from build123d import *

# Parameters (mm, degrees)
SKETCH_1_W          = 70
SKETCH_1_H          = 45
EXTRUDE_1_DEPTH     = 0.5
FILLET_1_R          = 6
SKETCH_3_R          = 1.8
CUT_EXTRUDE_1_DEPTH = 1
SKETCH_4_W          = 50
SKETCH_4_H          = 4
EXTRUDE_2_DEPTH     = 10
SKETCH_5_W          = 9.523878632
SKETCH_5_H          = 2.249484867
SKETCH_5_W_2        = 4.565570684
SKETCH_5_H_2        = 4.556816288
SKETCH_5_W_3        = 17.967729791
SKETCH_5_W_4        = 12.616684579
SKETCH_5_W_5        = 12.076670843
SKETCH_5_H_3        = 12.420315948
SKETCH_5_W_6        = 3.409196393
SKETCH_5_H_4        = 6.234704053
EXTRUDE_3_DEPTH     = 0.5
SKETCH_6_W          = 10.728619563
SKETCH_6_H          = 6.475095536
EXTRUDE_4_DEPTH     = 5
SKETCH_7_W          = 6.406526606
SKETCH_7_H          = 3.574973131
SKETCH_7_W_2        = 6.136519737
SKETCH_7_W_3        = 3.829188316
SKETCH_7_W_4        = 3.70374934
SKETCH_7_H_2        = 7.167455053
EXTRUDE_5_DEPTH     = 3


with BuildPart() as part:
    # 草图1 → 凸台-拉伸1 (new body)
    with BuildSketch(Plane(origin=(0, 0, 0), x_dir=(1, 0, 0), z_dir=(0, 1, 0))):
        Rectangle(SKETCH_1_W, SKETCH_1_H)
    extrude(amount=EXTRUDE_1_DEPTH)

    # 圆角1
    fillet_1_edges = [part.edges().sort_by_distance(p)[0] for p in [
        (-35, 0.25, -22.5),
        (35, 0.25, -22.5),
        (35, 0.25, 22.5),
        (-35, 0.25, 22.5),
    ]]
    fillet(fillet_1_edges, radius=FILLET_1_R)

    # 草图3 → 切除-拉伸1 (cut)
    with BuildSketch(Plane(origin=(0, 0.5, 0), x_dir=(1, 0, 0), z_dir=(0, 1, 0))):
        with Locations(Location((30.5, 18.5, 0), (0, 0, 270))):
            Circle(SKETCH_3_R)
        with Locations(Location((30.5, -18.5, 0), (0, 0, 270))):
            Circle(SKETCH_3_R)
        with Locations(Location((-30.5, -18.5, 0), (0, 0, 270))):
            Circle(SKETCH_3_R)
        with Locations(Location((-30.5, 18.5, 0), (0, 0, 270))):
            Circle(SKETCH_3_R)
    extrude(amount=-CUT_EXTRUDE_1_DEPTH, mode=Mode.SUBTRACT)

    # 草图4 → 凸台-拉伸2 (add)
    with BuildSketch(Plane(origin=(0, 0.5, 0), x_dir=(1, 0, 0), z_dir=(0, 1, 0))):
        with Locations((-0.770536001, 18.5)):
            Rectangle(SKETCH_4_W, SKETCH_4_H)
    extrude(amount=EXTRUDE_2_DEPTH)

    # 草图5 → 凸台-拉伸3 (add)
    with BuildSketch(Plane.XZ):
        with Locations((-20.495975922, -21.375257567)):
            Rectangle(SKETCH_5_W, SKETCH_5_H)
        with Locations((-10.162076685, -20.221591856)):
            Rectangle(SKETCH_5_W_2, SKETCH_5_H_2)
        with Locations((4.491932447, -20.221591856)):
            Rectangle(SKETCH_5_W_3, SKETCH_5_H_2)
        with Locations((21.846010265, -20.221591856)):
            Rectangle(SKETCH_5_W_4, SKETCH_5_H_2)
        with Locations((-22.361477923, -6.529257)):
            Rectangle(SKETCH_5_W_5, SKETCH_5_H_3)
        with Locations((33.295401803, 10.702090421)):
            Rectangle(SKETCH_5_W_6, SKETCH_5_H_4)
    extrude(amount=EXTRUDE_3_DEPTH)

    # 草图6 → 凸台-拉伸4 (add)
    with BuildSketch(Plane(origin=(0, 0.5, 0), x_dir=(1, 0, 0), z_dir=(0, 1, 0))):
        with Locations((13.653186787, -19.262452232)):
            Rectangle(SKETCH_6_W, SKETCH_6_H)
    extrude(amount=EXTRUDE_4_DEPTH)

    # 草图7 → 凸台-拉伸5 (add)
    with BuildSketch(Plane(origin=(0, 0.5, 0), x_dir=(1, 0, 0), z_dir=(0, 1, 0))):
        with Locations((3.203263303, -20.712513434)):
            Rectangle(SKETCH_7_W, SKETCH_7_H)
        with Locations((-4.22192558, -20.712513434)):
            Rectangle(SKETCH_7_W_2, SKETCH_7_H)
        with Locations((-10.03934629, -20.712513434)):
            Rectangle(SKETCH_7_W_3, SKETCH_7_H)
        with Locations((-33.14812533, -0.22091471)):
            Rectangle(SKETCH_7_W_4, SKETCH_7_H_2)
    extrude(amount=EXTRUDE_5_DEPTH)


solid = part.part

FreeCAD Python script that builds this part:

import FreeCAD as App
import Part
import Sketcher
Q = App.Units.Quantity


def edges_at(feature, points):
    """Names of the edges that pass closest to the given points."""
    edges = feature.Shape.Edges
    near = lambda p: min(range(len(edges)), key=lambda i: edges[i].distToShape(Part.Vertex(*p))[0])
    return sorted({f"Edge{near(p) + 1}" for p in points})


def add_polygon(sketch, points):
    """Adds a closed chain of lines whose ends are joined by coincident constraints."""
    first, n = sketch.GeometryCount, len(points)
    for a, b in zip(points, points[1:] + points[:1]):
        sketch.addGeometry(Part.LineSegment(App.Vector(*a, 0), App.Vector(*b, 0)), False)
    for i in range(n):
        sketch.addConstraint(Sketcher.Constraint("Coincident", first + i, 2, first + (i + 1) % n, 1))

doc = App.newDocument("Part")
body = doc.addObject("PartDesign::Body", "Body")

sketch1 = doc.addObject("Sketcher::SketchObject", "Sketch")
body.addObject(sketch1)
sketch1.AttachmentSupport = (doc.XZ_Plane, [""])
sketch1.MapMode = "FlatFace"
add_polygon(sketch1, [(-35, -22.5), (-35, 22.5), (35, 22.5), (35, -22.5)])
sketch1.addConstraint(Sketcher.Constraint("Vertical", 0))
sketch1.addConstraint(Sketcher.Constraint("Horizontal", 1))
sketch1.addConstraint(Sketcher.Constraint("Vertical", 2))
sketch1.addConstraint(Sketcher.Constraint("Horizontal", 3))
sketch1.addConstraint(Sketcher.Constraint("Symmetric", 0, 2, 2, 2, -1, 1))
sketch1.addConstraint(Sketcher.Constraint("DistanceX", 1, 1, 1, 2, Q("70 mm")))
sketch1.addConstraint(Sketcher.Constraint("DistanceY", 0, 1, 0, 2, Q("45 mm")))
pad1 = doc.addObject("PartDesign::Pad", "Pad")
body.addObject(pad1)
pad1.Profile = sketch1
pad1.Length = 0.5
pad1.Reversed = True
doc.recompute()

fillet = doc.addObject("PartDesign::Fillet", "Fillet")
body.addObject(fillet)
fillet.Base = (pad1, edges_at(pad1, [
    (-35, 0.25, -22.5),
    (35, 0.25, -22.5),
    (35, 0.25, 22.5),
    (-35, 0.25, 22.5),
]))
fillet.Radius = 6

sketch2 = doc.addObject("Sketcher::SketchObject", "Sketch001")
body.addObject(sketch2)
sketch2.AttachmentSupport = (doc.XZ_Plane, [""])
sketch2.MapMode = "FlatFace"
sketch2.AttachmentOffset = App.Placement(App.Vector(0, 0, -0.5), App.Rotation())
sketch2.addGeometry(Part.Circle(App.Vector(30.5, -18.5, 0), App.Vector(0, 0, 1), 1.8), False)
sketch2.addGeometry(Part.Circle(App.Vector(30.5, 18.5, 0), App.Vector(0, 0, 1), 1.8), False)
sketch2.addGeometry(Part.Circle(App.Vector(-30.5, 18.5, 0), App.Vector(0, 0, 1), 1.8), False)
sketch2.addGeometry(Part.Circle(App.Vector(-30.5, -18.5, 0), App.Vector(0, 0, 1), 1.8), False)
sketch2.addConstraint(Sketcher.Constraint("Equal", 0, 1))
sketch2.addConstraint(Sketcher.Constraint("Equal", 1, 2))
sketch2.addConstraint(Sketcher.Constraint("Equal", 2, 3))
sketch2.addConstraint(Sketcher.Constraint("Symmetric", 0, 3, 2, 3, -1, 1))
sketch2.addConstraint(Sketcher.Constraint("Symmetric", 1, 3, 3, 3, -1, 1))
sketch2.addConstraint(Sketcher.Constraint("Symmetric", 1, 3, 2, 3, -2))
sketch2.addConstraint(Sketcher.Constraint("Diameter", 0, Q("3.6 mm")))
sketch2.addConstraint(Sketcher.Constraint("DistanceY", 0, 3, 1, 3, Q("37 mm")))
sketch2.addConstraint(Sketcher.Constraint("DistanceX", 2, 3, 1, 3, Q("61 mm")))
pocket1 = doc.addObject("PartDesign::Pocket", "Pocket")
body.addObject(pocket1)
pocket1.Profile = sketch2
pocket1.Length = 1
pocket1.Reversed = True

sketch3 = doc.addObject("Sketcher::SketchObject", "Sketch002")
body.addObject(sketch3)
sketch3.AttachmentSupport = (doc.XZ_Plane, [""])
sketch3.MapMode = "FlatFace"
sketch3.AttachmentOffset = App.Placement(App.Vector(0, 0, -0.5), App.Rotation())
add_polygon(sketch3, [(-25.770536, -20.5), (-25.770536, -16.5), (24.229464, -16.5), (24.229464, -20.5)])
sketch3.addConstraint(Sketcher.Constraint("Vertical", 0))
sketch3.addConstraint(Sketcher.Constraint("Horizontal", 1))
sketch3.addConstraint(Sketcher.Constraint("Vertical", 2))
sketch3.addConstraint(Sketcher.Constraint("Horizontal", 3))
sketch3.addConstraint(Sketcher.Constraint("DistanceX", 1, 1, 1, 2, Q("50 mm")))
sketch3.addConstraint(Sketcher.Constraint("DistanceY", 0, 1, 0, 2, Q("4 mm")))
sketch3.addConstraint(Sketcher.Constraint("DistanceY", 0, 2, -1, 1, Q("16.5 mm")))
sketch3.addConstraint(Sketcher.Constraint("DistanceX", 0, 2, -1, 1, Q("25.770536 mm")))
pad2 = doc.addObject("PartDesign::Pad", "Pad001")
body.addObject(pad2)
pad2.Profile = sketch3
pad2.Length = 10
pad2.Reversed = True

sketch4 = doc.addObject("Sketcher::SketchObject", "Sketch003")
body.addObject(sketch4)
sketch4.AttachmentSupport = (doc.XZ_Plane, [""])
sketch4.MapMode = "FlatFace"
add_polygon(sketch4, [(-25.257915, -20.250515), (-25.257915, -22.5), (-15.734037, -22.5), (-15.734037, -20.250515)])
add_polygon(sketch4, [(-12.444862, -17.943184), (-12.444862, -22.5), (-7.879291, -22.5), (-7.879291, -17.943184)])
add_polygon(sketch4, [(-4.491932, -17.943184), (-4.491932, -22.5), (13.475797, -22.5), (13.475797, -17.943184)])
add_polygon(sketch4, [(15.537668, -17.943184), (15.537668, -22.5), (28.154353, -22.5), (28.154353, -17.943184)])
add_polygon(sketch4, [(-28.399813, -0.319099), (-28.399813, -12.739415), (-16.323143, -12.739415), (-16.323143, -0.319099)])
add_polygon(sketch4, [(31.590804, 13.819442), (31.590804, 7.584738), (35, 7.584738), (35, 13.819442)])
sketch4.addConstraint(Sketcher.Constraint("Vertical", 0))
sketch4.addConstraint(Sketcher.Constraint("Horizontal", 1))
sketch4.addConstraint(Sketcher.Constraint("Vertical", 2))
sketch4.addConstraint(Sketcher.Constraint("Horizontal", 3))
sketch4.addConstraint(Sketcher.Constraint("Vertical", 4))
sketch4.addConstraint(Sketcher.Constraint("Horizontal", 5))
sketch4.addConstraint(Sketcher.Constraint("Vertical", 6))
sketch4.addConstraint(Sketcher.Constraint("Horizontal", 7))
sketch4.addConstraint(Sketcher.Constraint("Vertical", 8))
sketch4.addConstraint(Sketcher.Constraint("Horizontal", 9))
sketch4.addConstraint(Sketcher.Constraint("Vertical", 10))
sketch4.addConstraint(Sketcher.Constraint("Horizontal", 11))
sketch4.addConstraint(Sketcher.Constraint("Vertical", 12))
sketch4.addConstraint(Sketcher.Constraint("Horizontal", 13))
sketch4.addConstraint(Sketcher.Constraint("Vertical", 14))
sketch4.addConstraint(Sketcher.Constraint("Horizontal", 15))
sketch4.addConstraint(Sketcher.Constraint("Vertical", 16))
sketch4.addConstraint(Sketcher.Constraint("Horizontal", 17))
sketch4.addConstraint(Sketcher.Constraint("Vertical", 18))
sketch4.addConstraint(Sketcher.Constraint("Horizontal", 19))
sketch4.addConstraint(Sketcher.Constraint("Vertical", 20))
sketch4.addConstraint(Sketcher.Constraint("Horizontal", 21))
sketch4.addConstraint(Sketcher.Constraint("Vertical", 22))
sketch4.addConstraint(Sketcher.Constraint("Horizontal", 23))
sketch4.addConstraint(Sketcher.Constraint("Horizontal", 1, 2, 4, 2))
sketch4.addConstraint(Sketcher.Constraint("Horizontal", 5, 2, 8, 2))
sketch4.addConstraint(Sketcher.Constraint("Horizontal", 7, 2, 10, 2))
sketch4.addConstraint(Sketcher.Constraint("Horizontal", 9, 2, 12, 2))
sketch4.addConstraint(Sketcher.Constraint("Horizontal", 11, 2, 14, 2))
sketch4.addConstraint(Sketcher.Constraint("DistanceX", -1, 1, 21, 2, Q("35 mm")))
sketch4.addConstraint(Sketcher.Constraint("DistanceY", 0, 2, -1, 1, Q("22.5 mm")))
sketch4.addConstraint(Sketcher.Constraint("DistanceX", 1, 1, 1, 2, Q("9.523879 mm")))
sketch4.addConstraint(Sketcher.Constraint("DistanceX", 5, 1, 5, 2, Q("4.565571 mm")))
sketch4.addConstraint(Sketcher.Constraint("DistanceX", 9, 1, 9, 2, Q("17.96773 mm")))
sketch4.addConstraint(Sketcher.Constraint("DistanceX", 17, 1, 17, 2, Q("12.076671 mm")))
sketch4.addConstraint(Sketcher.Constraint("DistanceY", 18, 2, -1, 1, Q("0.319099 mm")))
sketch4.addConstraint(Sketcher.Constraint("DistanceX", 8, 2, 12, 2, Q("20.0296 mm")))
sketch4.addConstraint(Sketcher.Constraint("DistanceX", 16, 2, 3, 2, Q("3.141898 mm")))
sketch4.addConstraint(Sketcher.Constraint("DistanceY", 3, 2, 16, 2, Q("7.5111 mm")))
sketch4.addConstraint(Sketcher.Constraint("DistanceX", 13, 1, 13, 2, Q("12.616685 mm")))
sketch4.addConstraint(Sketcher.Constraint("DistanceX", 21, 1, 21, 2, Q("3.409196 mm")))
sketch4.addConstraint(Sketcher.Constraint("DistanceY", 0, 2, 0, 1, Q("2.249485 mm")))
sketch4.addConstraint(Sketcher.Constraint("DistanceY", 4, 2, 4, 1, Q("4.556816 mm")))
sketch4.addConstraint(Sketcher.Constraint("DistanceY", 20, 2, 20, 1, Q("6.234704 mm")))
sketch4.addConstraint(Sketcher.Constraint("DistanceX", 5, 2, -1, 1, Q("7.879291 mm")))
sketch4.addConstraint(Sketcher.Constraint("DistanceY", -1, 1, 20, 2, Q("7.584738 mm")))
sketch4.addConstraint(Sketcher.Constraint("DistanceX", 5, 2, 8, 2, Q("3.387359 mm")))
sketch4.addConstraint(Sketcher.Constraint("DistanceX", 16, 2, 7, 2, Q("15.954951 mm")))
pad3 = doc.addObject("PartDesign::Pad", "Pad002")
body.addObject(pad3)
pad3.Profile = sketch4
pad3.Length = 0.5

sketch5 = doc.addObject("Sketcher::SketchObject", "Sketch004")
body.addObject(sketch5)
sketch5.AttachmentSupport = (doc.XZ_Plane, [""])
sketch5.MapMode = "FlatFace"
sketch5.AttachmentOffset = App.Placement(App.Vector(0, 0, -0.5), App.Rotation())
add_polygon(sketch5, [(8.288877, 16.024904), (8.288877, 22.5), (19.017497, 22.5), (19.017497, 16.024904)])
sketch5.addConstraint(Sketcher.Constraint("Vertical", 0))
sketch5.addConstraint(Sketcher.Constraint("Horizontal", 1))
sketch5.addConstraint(Sketcher.Constraint("Vertical", 2))
sketch5.addConstraint(Sketcher.Constraint("Horizontal", 3))
sketch5.addConstraint(Sketcher.Constraint("DistanceY", -1, 1, 0, 2, Q("22.5 mm")))
sketch5.addConstraint(Sketcher.Constraint("DistanceX", 1, 1, 1, 2, Q("10.72862 mm")))
sketch5.addConstraint(Sketcher.Constraint("DistanceY", 0, 1, 0, 2, Q("6.475096 mm")))
sketch5.addConstraint(Sketcher.Constraint("DistanceX", -1, 1, 0, 2, Q("8.288877 mm")))
pad4 = doc.addObject("PartDesign::Pad", "Pad003")
body.addObject(pad4)
pad4.Profile = sketch5
pad4.Length = 5
pad4.Reversed = True

sketch6 = doc.addObject("Sketcher::SketchObject", "Sketch005")
body.addObject(sketch6)
sketch6.AttachmentSupport = (doc.XZ_Plane, [""])
sketch6.MapMode = "FlatFace"
sketch6.AttachmentOffset = App.Placement(App.Vector(0, 0, -0.5), App.Rotation())
add_polygon(sketch6, [(0, 18.925027), (0, 22.5), (6.406527, 22.5), (6.406527, 18.925027)])
add_polygon(sketch6, [(-7.290185, 18.925027), (-7.290185, 22.5), (-1.153666, 22.5), (-1.153666, 18.925027)])
add_polygon(sketch6, [(-11.95394, 18.925027), (-11.95394, 22.5), (-8.124752, 22.5), (-8.124752, 18.925027)])
add_polygon(sketch6, [(-35, -3.362813), (-35, 3.804642), (-31.296251, 3.804642), (-31.296251, -3.362813)])
sketch6.addConstraint(Sketcher.Constraint("Vertical", 0))
sketch6.addConstraint(Sketcher.Constraint("Horizontal", 1))
sketch6.addConstraint(Sketcher.Constraint("Vertical", 2))
sketch6.addConstraint(Sketcher.Constraint("Horizontal", 3))
sketch6.addConstraint(Sketcher.Constraint("Vertical", 4))
sketch6.addConstraint(Sketcher.Constraint("Horizontal", 5))
sketch6.addConstraint(Sketcher.Constraint("Vertical", 6))
sketch6.addConstraint(Sketcher.Constraint("Horizontal", 7))
sketch6.addConstraint(Sketcher.Constraint("Vertical", 8))
sketch6.addConstraint(Sketcher.Constraint("Horizontal", 9))
sketch6.addConstraint(Sketcher.Constraint("Vertical", 10))
sketch6.addConstraint(Sketcher.Constraint("Horizontal", 11))
sketch6.addConstraint(Sketcher.Constraint("Vertical", 12))
sketch6.addConstraint(Sketcher.Constraint("Horizontal", 13))
sketch6.addConstraint(Sketcher.Constraint("Vertical", 14))
sketch6.addConstraint(Sketcher.Constraint("Horizontal", 15))
sketch6.addConstraint(Sketcher.Constraint("PointOnObject", 0, 2, -2))
sketch6.addConstraint(Sketcher.Constraint("Horizontal", 1, 2, 4, 2))
sketch6.addConstraint(Sketcher.Constraint("Horizontal", 3, 2, 6, 2))
sketch6.addConstraint(Sketcher.Constraint("Horizontal", 5, 2, 8, 2))
sketch6.addConstraint(Sketcher.Constraint("Horizontal", 7, 2, 10, 2))
sketch6.addConstraint(Sketcher.Constraint("DistanceX", 12, 2, -1, 1, Q("35 mm")))
sketch6.addConstraint(Sketcher.Constraint("DistanceY", -1, 1, 0, 2, Q("22.5 mm")))
sketch6.addConstraint(Sketcher.Constraint("DistanceX", 5, 1, 5, 2, Q("6.13652 mm")))
sketch6.addConstraint(Sketcher.Constraint("DistanceX", 9, 1, 9, 2, Q("3.829188 mm")))
sketch6.addConstraint(Sketcher.Constraint("DistanceX", 13, 1, 13, 2, Q("3.703749 mm")))
sketch6.addConstraint(Sketcher.Constraint("DistanceX", 13, 2, 10, 2, Q("23.171499 mm")))
sketch6.addConstraint(Sketcher.Constraint("DistanceX", 1, 1, 1, 2, Q("6.406527 mm")))
sketch6.addConstraint(Sketcher.Constraint("DistanceY", 0, 1, 0, 2, Q("3.574973 mm")))
sketch6.addConstraint(Sketcher.Constraint("DistanceY", 12, 1, 12, 2, Q("7.167455 mm")))
sketch6.addConstraint(Sketcher.Constraint("DistanceY", 14, 2, 11, 2, Q("22.28784 mm")))
sketch6.addConstraint(Sketcher.Constraint("DistanceX", 4, 2, -1, 1, Q("7.290185 mm")))
pad5 = doc.addObject("PartDesign::Pad", "Pad004")
body.addObject(pad5)
pad5.Profile = sketch6
pad5.Length = 3
pad5.Reversed = True

doc.recompute()
